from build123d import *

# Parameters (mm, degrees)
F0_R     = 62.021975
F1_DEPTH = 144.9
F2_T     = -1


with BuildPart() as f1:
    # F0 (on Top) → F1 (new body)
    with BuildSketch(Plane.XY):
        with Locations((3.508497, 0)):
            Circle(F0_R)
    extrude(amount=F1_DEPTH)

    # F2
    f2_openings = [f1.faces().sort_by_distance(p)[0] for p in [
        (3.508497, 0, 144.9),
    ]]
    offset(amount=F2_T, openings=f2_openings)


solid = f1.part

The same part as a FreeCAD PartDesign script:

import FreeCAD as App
import Part
import Sketcher


def faces_at(feature, points):
    """Names of the faces that lie closest to the given points."""
    faces = feature.Shape.Faces
    near = lambda p: min(range(len(faces)), key=lambda i: faces[i].distToShape(Part.Vertex(*p))[0])
    return sorted({f"Face{near(p) + 1}" for p in points})

doc = App.newDocument("Part")
params = doc.addObject("Spreadsheet::Sheet", "Params")
for row, (alias, value) in enumerate([
    ("pad1_length", "144.9 mm"),
    ("thickness_wall", "1 mm"),
], start=1):
    params.set(f"A{row}", alias)
    params.set(f"B{row}", "=" + value)
    params.setAlias(f"B{row}", alias)

body = doc.addObject("PartDesign::Body", "Body")

sketch1 = body.newObject("Sketcher::SketchObject", "Sketch")
sketch1.AttachmentSupport = (doc.getObject("XY_Plane"), [""])
sketch1.MapMode = "FlatFace"
sketch1.addGeometry(Part.Circle(App.Vector(4, 0, 0), App.Vector(0, 0, 1), 62), False)
sketch1.addConstraint([
    Sketcher.Constraint("PointOnObject", 0, 3, -1),
    Sketcher.Constraint("Diameter", 0, 124.04395),
    Sketcher.Constraint("DistanceX", -1, 1, 0, 3, 3.508497),
])
pad1 = body.newObject("PartDesign::Pad", "Pad")
pad1.Profile = sketch1
pad1.setExpression("Length", "Params.pad1_length")
doc.recompute()

thickness = body.newObject("PartDesign::Thickness", "Thickness")
thickness.Base = (pad1, faces_at(pad1, [(3.508, 0, 144.9)]))
thickness.setExpression("Value", "Params.thickness_wall")
thickness.Reversed = True
thickness.Join = "Arc"

doc.recompute()
